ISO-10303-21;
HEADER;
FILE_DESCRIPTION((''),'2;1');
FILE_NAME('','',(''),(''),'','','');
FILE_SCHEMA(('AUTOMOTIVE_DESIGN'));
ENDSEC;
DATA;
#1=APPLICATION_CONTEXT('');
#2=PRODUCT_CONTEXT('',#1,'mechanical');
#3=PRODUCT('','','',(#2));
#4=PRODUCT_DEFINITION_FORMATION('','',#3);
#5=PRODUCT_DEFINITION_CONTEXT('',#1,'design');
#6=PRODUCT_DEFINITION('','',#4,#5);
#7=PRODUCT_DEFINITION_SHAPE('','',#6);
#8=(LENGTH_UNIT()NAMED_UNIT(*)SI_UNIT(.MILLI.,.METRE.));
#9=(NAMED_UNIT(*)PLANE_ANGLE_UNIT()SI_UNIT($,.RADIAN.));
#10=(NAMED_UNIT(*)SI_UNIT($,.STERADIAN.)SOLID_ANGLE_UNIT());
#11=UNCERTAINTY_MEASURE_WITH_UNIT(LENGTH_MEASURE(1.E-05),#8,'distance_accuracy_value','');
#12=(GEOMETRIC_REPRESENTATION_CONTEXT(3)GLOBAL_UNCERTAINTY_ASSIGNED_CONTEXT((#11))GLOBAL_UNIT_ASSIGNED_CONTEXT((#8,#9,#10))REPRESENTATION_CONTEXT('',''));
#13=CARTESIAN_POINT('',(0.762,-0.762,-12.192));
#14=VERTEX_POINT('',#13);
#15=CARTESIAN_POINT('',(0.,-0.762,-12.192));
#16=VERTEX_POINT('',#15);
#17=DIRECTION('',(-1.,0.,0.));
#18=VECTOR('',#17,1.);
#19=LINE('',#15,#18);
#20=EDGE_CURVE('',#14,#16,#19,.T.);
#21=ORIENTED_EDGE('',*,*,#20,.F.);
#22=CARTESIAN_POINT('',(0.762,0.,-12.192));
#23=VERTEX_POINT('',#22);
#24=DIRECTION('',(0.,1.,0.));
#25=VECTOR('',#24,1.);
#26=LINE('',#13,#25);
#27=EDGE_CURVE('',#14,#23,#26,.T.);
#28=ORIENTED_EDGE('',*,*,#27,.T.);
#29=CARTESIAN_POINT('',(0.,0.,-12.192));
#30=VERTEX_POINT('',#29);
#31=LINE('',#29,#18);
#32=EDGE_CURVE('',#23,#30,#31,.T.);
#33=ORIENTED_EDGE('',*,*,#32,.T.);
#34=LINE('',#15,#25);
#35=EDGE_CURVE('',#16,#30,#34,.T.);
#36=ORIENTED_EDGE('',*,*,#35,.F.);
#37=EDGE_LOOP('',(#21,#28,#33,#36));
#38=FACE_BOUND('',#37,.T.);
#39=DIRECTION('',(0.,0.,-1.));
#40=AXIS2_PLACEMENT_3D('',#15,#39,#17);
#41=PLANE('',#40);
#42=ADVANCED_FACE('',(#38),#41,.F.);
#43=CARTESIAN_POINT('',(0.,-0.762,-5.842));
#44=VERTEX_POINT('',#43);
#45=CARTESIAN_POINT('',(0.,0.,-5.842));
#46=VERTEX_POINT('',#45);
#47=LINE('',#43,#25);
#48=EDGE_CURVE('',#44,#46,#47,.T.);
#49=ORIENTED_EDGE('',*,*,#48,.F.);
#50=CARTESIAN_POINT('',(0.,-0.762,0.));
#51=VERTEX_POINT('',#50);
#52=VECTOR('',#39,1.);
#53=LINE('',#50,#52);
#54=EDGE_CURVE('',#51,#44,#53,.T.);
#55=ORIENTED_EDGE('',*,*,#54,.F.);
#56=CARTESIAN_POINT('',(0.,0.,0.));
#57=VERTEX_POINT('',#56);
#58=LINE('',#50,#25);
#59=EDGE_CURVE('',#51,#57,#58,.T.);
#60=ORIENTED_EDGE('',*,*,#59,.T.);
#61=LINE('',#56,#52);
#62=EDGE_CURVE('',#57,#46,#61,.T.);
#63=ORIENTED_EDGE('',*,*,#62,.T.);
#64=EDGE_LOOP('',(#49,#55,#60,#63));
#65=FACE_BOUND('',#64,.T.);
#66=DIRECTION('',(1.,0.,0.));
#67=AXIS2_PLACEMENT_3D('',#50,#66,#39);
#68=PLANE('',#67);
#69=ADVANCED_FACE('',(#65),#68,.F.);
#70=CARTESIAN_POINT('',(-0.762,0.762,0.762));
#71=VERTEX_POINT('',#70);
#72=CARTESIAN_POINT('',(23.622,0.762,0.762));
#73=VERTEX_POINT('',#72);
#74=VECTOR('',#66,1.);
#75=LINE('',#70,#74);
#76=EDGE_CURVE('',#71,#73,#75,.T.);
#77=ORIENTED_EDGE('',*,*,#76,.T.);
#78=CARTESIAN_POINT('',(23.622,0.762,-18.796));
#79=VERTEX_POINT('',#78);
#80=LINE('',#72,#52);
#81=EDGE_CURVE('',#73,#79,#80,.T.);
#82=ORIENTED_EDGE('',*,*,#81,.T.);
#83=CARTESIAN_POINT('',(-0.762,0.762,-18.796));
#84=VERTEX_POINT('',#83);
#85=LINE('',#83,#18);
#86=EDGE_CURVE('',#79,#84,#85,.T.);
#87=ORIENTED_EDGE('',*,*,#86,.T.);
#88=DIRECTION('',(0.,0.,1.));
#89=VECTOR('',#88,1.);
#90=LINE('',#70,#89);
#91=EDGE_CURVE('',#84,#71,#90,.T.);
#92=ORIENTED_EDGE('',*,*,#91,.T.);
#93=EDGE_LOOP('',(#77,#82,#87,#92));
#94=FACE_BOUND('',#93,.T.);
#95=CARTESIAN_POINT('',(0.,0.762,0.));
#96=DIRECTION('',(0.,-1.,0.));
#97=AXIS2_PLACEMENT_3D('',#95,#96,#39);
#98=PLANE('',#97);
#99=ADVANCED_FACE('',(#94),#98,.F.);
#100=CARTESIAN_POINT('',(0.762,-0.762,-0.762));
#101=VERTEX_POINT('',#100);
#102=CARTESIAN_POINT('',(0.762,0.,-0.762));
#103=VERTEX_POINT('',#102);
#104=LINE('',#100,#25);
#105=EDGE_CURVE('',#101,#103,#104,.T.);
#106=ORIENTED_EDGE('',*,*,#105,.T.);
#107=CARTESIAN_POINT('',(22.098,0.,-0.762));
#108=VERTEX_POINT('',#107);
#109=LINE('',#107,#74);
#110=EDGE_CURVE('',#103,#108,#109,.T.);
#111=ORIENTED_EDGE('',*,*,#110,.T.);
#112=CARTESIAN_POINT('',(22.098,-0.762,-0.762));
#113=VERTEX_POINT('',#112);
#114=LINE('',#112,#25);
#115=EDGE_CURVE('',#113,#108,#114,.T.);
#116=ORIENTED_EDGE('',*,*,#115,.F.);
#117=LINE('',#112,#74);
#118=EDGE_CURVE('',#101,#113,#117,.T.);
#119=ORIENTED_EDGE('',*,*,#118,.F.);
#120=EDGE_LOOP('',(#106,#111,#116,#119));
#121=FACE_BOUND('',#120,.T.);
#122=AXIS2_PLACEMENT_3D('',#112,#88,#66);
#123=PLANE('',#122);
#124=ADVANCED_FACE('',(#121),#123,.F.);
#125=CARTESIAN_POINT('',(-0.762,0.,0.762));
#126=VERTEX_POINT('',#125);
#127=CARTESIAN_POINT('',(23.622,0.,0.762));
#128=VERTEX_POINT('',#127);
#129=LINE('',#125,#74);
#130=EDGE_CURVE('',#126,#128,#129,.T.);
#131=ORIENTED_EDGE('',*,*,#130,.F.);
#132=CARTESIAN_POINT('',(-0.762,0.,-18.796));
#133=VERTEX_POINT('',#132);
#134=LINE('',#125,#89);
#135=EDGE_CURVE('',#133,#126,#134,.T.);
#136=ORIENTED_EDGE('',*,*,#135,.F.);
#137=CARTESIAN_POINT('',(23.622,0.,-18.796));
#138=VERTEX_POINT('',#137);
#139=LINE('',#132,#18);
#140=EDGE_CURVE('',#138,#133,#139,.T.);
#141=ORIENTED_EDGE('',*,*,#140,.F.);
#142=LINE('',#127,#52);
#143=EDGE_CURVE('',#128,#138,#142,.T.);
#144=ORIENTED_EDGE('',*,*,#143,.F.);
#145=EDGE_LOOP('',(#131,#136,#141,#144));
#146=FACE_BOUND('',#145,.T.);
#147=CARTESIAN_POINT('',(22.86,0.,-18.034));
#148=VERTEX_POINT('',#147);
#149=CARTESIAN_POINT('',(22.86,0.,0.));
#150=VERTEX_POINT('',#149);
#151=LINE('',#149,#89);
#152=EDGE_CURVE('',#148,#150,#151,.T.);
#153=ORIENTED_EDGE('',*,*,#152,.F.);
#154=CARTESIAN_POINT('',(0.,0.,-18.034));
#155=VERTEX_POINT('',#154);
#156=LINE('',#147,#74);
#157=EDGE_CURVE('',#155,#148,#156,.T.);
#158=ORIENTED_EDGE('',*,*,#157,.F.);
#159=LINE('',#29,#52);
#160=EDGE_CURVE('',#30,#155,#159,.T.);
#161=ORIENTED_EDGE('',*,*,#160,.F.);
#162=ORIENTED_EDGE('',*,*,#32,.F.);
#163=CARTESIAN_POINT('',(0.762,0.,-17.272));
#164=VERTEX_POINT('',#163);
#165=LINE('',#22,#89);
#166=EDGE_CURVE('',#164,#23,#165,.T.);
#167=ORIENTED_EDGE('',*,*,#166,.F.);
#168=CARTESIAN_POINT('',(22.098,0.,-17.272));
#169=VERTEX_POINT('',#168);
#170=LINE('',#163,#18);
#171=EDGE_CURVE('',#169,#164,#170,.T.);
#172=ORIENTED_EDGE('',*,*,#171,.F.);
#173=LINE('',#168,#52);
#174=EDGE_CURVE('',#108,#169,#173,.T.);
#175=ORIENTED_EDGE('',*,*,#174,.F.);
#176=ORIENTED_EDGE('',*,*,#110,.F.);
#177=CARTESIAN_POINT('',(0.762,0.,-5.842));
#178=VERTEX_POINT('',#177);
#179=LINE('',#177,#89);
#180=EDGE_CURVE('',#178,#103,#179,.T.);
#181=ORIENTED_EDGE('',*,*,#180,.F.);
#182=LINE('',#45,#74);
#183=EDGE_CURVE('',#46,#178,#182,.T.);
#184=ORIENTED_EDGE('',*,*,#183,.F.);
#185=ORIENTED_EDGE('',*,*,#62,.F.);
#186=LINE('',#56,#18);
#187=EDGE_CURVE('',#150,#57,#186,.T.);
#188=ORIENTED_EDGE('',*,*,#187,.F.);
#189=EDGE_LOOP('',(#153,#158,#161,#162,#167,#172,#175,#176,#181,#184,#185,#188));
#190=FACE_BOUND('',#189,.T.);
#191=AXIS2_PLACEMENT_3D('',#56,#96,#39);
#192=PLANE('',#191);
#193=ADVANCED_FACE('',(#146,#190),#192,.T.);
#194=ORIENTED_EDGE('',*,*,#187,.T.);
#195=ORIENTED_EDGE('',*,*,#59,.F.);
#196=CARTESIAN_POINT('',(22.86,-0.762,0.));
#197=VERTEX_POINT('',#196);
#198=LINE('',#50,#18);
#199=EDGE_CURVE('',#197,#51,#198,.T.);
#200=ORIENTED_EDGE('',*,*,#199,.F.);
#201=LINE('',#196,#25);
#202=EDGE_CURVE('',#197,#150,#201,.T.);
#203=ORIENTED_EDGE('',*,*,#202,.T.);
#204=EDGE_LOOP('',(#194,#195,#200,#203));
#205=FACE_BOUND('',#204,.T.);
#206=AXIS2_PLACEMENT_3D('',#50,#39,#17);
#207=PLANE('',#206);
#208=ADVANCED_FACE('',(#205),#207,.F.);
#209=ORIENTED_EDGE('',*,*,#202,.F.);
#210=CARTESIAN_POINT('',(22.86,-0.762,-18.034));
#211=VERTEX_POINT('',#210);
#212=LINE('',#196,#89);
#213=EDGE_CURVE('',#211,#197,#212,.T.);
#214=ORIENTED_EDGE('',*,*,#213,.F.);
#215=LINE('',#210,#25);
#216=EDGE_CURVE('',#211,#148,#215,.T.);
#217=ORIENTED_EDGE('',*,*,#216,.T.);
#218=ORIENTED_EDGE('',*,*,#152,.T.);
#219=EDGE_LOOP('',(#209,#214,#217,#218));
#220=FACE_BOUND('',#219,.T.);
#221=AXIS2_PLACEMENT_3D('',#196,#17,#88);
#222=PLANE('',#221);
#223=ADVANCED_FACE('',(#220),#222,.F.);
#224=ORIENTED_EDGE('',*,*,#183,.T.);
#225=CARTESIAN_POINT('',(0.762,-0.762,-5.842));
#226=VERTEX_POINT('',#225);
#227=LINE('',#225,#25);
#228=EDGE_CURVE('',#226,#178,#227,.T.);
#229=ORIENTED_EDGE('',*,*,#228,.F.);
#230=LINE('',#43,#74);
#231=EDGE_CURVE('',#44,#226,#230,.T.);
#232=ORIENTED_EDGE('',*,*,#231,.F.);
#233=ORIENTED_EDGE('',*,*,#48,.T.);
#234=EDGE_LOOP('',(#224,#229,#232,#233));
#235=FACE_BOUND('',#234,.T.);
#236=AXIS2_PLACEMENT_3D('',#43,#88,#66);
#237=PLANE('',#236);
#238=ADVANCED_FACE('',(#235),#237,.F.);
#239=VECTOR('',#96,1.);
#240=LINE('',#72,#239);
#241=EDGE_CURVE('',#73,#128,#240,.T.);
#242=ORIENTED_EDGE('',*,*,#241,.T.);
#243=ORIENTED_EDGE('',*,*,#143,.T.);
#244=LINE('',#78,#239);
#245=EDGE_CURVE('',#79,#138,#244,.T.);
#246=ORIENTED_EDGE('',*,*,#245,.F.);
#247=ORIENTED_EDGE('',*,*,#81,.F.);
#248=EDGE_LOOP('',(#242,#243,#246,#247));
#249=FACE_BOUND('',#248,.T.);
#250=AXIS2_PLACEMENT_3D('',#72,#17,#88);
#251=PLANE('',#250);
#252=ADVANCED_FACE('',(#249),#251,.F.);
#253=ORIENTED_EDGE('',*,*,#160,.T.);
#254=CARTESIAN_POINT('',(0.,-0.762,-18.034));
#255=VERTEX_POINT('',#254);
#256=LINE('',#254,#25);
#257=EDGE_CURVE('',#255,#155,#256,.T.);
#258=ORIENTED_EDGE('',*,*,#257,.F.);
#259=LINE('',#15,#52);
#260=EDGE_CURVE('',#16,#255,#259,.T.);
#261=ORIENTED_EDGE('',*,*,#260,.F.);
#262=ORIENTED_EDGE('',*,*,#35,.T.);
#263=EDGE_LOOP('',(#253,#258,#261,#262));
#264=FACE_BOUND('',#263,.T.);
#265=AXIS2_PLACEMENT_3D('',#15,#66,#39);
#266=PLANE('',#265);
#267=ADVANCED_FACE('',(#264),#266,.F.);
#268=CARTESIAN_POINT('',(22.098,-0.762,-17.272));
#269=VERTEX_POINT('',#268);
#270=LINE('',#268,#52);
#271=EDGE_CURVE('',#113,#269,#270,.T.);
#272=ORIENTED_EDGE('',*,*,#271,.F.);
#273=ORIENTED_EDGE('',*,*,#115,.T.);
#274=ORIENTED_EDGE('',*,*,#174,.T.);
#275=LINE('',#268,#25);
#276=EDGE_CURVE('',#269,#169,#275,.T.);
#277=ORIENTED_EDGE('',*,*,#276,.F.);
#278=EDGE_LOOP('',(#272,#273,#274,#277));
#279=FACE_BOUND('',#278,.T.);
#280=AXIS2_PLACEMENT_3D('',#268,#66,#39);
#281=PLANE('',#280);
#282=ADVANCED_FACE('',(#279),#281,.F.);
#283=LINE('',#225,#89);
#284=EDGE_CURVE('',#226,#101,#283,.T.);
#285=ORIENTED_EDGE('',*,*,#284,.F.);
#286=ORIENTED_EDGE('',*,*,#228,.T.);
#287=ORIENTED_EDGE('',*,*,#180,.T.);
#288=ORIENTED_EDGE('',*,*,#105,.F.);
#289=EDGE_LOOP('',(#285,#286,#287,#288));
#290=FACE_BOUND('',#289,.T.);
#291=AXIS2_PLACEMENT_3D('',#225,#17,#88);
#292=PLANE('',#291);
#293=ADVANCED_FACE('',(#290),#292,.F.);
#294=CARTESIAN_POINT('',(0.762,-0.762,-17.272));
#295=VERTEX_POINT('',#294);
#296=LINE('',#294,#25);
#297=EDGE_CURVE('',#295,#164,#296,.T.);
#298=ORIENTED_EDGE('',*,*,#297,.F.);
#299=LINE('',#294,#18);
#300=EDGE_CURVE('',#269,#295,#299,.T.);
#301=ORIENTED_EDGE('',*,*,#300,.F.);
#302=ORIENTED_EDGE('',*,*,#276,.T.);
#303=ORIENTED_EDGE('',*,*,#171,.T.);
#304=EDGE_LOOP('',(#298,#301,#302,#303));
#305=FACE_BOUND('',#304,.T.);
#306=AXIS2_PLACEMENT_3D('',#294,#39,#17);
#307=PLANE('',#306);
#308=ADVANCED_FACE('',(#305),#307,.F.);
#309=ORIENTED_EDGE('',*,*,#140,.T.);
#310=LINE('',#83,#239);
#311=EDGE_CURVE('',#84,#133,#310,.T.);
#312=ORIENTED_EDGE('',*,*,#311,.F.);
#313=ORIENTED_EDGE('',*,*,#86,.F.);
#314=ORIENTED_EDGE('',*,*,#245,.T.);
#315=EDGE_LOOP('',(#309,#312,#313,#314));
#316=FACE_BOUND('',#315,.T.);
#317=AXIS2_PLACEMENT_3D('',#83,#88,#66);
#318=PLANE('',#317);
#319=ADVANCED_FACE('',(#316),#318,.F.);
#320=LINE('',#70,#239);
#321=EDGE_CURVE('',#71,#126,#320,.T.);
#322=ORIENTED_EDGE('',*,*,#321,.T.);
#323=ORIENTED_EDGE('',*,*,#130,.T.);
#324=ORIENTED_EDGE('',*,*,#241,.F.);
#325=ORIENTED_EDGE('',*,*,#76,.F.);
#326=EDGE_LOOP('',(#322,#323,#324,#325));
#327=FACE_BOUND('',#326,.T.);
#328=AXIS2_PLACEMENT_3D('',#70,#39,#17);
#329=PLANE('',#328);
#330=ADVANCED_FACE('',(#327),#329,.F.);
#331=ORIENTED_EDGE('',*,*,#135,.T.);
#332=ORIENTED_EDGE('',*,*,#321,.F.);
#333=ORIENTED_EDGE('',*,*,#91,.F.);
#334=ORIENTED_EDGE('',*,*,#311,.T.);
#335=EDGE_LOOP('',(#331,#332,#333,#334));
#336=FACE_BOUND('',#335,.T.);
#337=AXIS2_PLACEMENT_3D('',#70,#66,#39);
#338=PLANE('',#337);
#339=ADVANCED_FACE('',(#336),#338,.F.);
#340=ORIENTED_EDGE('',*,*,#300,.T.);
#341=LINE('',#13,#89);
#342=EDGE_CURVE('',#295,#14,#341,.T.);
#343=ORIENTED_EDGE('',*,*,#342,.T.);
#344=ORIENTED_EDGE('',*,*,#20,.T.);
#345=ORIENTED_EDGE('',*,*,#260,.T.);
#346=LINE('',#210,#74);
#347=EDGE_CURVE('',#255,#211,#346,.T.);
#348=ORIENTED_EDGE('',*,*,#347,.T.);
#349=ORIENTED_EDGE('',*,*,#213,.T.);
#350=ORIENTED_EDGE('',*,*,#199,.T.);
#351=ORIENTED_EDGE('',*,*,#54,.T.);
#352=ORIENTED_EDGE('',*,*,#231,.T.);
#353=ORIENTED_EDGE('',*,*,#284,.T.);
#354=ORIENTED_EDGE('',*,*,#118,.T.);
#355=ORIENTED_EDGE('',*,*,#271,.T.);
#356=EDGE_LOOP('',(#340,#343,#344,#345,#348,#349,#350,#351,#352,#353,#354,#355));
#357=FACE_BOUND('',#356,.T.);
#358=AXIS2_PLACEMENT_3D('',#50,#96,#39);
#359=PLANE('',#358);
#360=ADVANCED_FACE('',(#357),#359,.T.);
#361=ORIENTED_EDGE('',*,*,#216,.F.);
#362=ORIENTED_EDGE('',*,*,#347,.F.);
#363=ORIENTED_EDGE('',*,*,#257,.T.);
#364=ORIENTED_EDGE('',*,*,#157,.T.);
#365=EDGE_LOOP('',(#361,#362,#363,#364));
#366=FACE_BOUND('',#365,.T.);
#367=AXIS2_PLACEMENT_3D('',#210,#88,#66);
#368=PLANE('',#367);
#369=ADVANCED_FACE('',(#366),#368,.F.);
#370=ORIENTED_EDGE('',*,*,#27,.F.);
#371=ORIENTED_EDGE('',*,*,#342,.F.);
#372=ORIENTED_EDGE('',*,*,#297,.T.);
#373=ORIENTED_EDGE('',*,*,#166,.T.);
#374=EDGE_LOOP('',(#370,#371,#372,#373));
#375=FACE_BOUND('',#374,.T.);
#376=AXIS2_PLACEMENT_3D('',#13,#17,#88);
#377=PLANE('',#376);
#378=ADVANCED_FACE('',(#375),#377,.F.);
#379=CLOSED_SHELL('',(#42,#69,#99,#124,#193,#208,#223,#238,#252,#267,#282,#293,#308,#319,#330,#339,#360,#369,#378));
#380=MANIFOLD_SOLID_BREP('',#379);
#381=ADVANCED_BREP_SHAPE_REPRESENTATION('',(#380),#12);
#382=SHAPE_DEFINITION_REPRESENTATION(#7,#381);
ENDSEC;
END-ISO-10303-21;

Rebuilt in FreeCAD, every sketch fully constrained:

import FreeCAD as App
import Part
import Sketcher
Q = App.Units.Quantity

doc = App.newDocument("Part")
body = doc.addObject("PartDesign::Body", "Body")

# Sketch on XZ plane
sketch1 = body.newObject("Sketcher::SketchObject", "Sketch")
sketch1.AttachmentSupport = (doc.getObject("XZ_Plane"), [""])
sketch1.MapMode = "FlatFace"
sketch1.addGeometry([
    Part.LineSegment(App.Vector(-1, -19, 0), App.Vector(-1, 1, 0)),
    Part.LineSegment(App.Vector(-1, 1, 0), App.Vector(24, 1, 0)),
    Part.LineSegment(App.Vector(24, 1, 0), App.Vector(24, -19, 0)),
    Part.LineSegment(App.Vector(24, -19, 0), App.Vector(-1, -19, 0)),
], False)
sketch1.addConstraint([
    Sketcher.Constraint("Coincident", 0, 2, 1, 1),
    Sketcher.Constraint("Coincident", 1, 2, 2, 1),
    Sketcher.Constraint("Coincident", 2, 2, 3, 1),
    Sketcher.Constraint("Coincident", 3, 2, 0, 1),
    Sketcher.Constraint("Vertical", 0),
    Sketcher.Constraint("Horizontal", 1),
    Sketcher.Constraint("Vertical", 2),
    Sketcher.Constraint("Horizontal", 3),
    Sketcher.Constraint("DistanceX", 1, 1, 1, 2, Q("0.96 in")),
    Sketcher.Constraint("DistanceY", 0, 1, 0, 2, Q("0.77 in")),
    Sketcher.Constraint("DistanceX", 0, 2, -1, 1, Q("0.03 in")),
    Sketcher.Constraint("DistanceY", -1, 1, 0, 2, Q("0.03 in")),
])
pad1 = body.newObject("PartDesign::Pad", "Pad")
pad1.Profile = sketch1
pad1.Length = Q("0.03 in")
pad1.Reversed = True

# Sketch on XZ plane
sketch2 = body.newObject("Sketcher::SketchObject", "Sketch001")
sketch2.AttachmentSupport = (doc.getObject("XZ_Plane"), [""])
sketch2.MapMode = "FlatFace"
sketch2.addGeometry([
    Part.LineSegment(App.Vector(22.9, 0, 0), App.Vector(0, 0, 0)),  # 0
    Part.LineSegment(App.Vector(0, 0, 0), App.Vector(0, -5.8, 0)),  # 1
    Part.LineSegment(App.Vector(0, -5.8, 0), App.Vector(0.8, -5.8, 0)),  # 2
    Part.LineSegment(App.Vector(0.8, -5.8, 0), App.Vector(0.8, -0.8, 0)),  # 3
    Part.LineSegment(App.Vector(0.8, -0.8, 0), App.Vector(22.1, -0.8, 0)),  # 4
    Part.LineSegment(App.Vector(22.1, -0.8, 0), App.Vector(22.1, -17.3, 0)),  # 5
    Part.LineSegment(App.Vector(22.1, -17.3, 0), App.Vector(0.8, -17.3, 0)),  # 6
    Part.LineSegment(App.Vector(0.8, -17.3, 0), App.Vector(0.8, -12.2, 0)),  # 7
    Part.LineSegment(App.Vector(0.8, -12.2, 0), App.Vector(0, -12.2, 0)),  # 8
    Part.LineSegment(App.Vector(0, -12.2, 0), App.Vector(0, -18, 0)),  # 9
    Part.LineSegment(App.Vector(0, -18, 0), App.Vector(22.9, -18, 0)),  # 10
    Part.LineSegment(App.Vector(22.9, -18, 0), App.Vector(22.9, 0, 0)),  # 11
], False)
sketch2.addConstraint([
    Sketcher.Constraint("Coincident", 0, 2, 1, 1),
    Sketcher.Constraint("Coincident", 1, 2, 2, 1),
    Sketcher.Constraint("Coincident", 2, 2, 3, 1),
    Sketcher.Constraint("Coincident", 3, 2, 4, 1),
    Sketcher.Constraint("Coincident", 4, 2, 5, 1),
    Sketcher.Constraint("Coincident", 5, 2, 6, 1),
    Sketcher.Constraint("Coincident", 6, 2, 7, 1),
    Sketcher.Constraint("Coincident", 7, 2, 8, 1),
    Sketcher.Constraint("Coincident", 8, 2, 9, 1),
    Sketcher.Constraint("Coincident", 9, 2, 10, 1),
    Sketcher.Constraint("Coincident", 10, 2, 11, 1),
    Sketcher.Constraint("Coincident", 11, 2, 0, 1),
    Sketcher.Constraint("Horizontal", 0),
    Sketcher.Constraint("Vertical", 1),
    Sketcher.Constraint("Horizontal", 2),
    Sketcher.Constraint("Vertical", 3),
    Sketcher.Constraint("Horizontal", 4),
    Sketcher.Constraint("Vertical", 5),
    Sketcher.Constraint("Horizontal", 6),
    Sketcher.Constraint("Vertical", 7),
    Sketcher.Constraint("Horizontal", 8),
    Sketcher.Constraint("Vertical", 9),
    Sketcher.Constraint("Horizontal", 10),
    Sketcher.Constraint("Vertical", 11),
    Sketcher.Constraint("Coincident", 0, 2, -1, 1),
    Sketcher.Constraint("PointOnObject", 8, 2, -2),
    Sketcher.Constraint("Vertical", 3, 2, 6, 2),
    Sketcher.Constraint("Equal", 3, 7),
    Sketcher.Constraint("Equal", 1, 9),
    Sketcher.Constraint("DistanceX", 0, 2, 0, 1, Q("0.9 in")),
    Sketcher.Constraint("DistanceY", 3, 1, 3, 2, Q("0.2 in")),
    Sketcher.Constraint("DistanceX", 2, 1, 2, 2, Q("0.03 in")),
    Sketcher.Constraint("DistanceX", 4, 1, 4, 2, Q("0.84 in")),
    Sketcher.Constraint("DistanceY", 1, 2, 1, 1, Q("0.23 in")),
    Sketcher.Constraint("DistanceY", 5, 2, 5, 1, Q("0.65 in")),
])
pad2 = body.newObject("PartDesign::Pad", "Pad001")
pad2.Profile = sketch2
pad2.Length = Q("0.03 in")

doc.recompute()
